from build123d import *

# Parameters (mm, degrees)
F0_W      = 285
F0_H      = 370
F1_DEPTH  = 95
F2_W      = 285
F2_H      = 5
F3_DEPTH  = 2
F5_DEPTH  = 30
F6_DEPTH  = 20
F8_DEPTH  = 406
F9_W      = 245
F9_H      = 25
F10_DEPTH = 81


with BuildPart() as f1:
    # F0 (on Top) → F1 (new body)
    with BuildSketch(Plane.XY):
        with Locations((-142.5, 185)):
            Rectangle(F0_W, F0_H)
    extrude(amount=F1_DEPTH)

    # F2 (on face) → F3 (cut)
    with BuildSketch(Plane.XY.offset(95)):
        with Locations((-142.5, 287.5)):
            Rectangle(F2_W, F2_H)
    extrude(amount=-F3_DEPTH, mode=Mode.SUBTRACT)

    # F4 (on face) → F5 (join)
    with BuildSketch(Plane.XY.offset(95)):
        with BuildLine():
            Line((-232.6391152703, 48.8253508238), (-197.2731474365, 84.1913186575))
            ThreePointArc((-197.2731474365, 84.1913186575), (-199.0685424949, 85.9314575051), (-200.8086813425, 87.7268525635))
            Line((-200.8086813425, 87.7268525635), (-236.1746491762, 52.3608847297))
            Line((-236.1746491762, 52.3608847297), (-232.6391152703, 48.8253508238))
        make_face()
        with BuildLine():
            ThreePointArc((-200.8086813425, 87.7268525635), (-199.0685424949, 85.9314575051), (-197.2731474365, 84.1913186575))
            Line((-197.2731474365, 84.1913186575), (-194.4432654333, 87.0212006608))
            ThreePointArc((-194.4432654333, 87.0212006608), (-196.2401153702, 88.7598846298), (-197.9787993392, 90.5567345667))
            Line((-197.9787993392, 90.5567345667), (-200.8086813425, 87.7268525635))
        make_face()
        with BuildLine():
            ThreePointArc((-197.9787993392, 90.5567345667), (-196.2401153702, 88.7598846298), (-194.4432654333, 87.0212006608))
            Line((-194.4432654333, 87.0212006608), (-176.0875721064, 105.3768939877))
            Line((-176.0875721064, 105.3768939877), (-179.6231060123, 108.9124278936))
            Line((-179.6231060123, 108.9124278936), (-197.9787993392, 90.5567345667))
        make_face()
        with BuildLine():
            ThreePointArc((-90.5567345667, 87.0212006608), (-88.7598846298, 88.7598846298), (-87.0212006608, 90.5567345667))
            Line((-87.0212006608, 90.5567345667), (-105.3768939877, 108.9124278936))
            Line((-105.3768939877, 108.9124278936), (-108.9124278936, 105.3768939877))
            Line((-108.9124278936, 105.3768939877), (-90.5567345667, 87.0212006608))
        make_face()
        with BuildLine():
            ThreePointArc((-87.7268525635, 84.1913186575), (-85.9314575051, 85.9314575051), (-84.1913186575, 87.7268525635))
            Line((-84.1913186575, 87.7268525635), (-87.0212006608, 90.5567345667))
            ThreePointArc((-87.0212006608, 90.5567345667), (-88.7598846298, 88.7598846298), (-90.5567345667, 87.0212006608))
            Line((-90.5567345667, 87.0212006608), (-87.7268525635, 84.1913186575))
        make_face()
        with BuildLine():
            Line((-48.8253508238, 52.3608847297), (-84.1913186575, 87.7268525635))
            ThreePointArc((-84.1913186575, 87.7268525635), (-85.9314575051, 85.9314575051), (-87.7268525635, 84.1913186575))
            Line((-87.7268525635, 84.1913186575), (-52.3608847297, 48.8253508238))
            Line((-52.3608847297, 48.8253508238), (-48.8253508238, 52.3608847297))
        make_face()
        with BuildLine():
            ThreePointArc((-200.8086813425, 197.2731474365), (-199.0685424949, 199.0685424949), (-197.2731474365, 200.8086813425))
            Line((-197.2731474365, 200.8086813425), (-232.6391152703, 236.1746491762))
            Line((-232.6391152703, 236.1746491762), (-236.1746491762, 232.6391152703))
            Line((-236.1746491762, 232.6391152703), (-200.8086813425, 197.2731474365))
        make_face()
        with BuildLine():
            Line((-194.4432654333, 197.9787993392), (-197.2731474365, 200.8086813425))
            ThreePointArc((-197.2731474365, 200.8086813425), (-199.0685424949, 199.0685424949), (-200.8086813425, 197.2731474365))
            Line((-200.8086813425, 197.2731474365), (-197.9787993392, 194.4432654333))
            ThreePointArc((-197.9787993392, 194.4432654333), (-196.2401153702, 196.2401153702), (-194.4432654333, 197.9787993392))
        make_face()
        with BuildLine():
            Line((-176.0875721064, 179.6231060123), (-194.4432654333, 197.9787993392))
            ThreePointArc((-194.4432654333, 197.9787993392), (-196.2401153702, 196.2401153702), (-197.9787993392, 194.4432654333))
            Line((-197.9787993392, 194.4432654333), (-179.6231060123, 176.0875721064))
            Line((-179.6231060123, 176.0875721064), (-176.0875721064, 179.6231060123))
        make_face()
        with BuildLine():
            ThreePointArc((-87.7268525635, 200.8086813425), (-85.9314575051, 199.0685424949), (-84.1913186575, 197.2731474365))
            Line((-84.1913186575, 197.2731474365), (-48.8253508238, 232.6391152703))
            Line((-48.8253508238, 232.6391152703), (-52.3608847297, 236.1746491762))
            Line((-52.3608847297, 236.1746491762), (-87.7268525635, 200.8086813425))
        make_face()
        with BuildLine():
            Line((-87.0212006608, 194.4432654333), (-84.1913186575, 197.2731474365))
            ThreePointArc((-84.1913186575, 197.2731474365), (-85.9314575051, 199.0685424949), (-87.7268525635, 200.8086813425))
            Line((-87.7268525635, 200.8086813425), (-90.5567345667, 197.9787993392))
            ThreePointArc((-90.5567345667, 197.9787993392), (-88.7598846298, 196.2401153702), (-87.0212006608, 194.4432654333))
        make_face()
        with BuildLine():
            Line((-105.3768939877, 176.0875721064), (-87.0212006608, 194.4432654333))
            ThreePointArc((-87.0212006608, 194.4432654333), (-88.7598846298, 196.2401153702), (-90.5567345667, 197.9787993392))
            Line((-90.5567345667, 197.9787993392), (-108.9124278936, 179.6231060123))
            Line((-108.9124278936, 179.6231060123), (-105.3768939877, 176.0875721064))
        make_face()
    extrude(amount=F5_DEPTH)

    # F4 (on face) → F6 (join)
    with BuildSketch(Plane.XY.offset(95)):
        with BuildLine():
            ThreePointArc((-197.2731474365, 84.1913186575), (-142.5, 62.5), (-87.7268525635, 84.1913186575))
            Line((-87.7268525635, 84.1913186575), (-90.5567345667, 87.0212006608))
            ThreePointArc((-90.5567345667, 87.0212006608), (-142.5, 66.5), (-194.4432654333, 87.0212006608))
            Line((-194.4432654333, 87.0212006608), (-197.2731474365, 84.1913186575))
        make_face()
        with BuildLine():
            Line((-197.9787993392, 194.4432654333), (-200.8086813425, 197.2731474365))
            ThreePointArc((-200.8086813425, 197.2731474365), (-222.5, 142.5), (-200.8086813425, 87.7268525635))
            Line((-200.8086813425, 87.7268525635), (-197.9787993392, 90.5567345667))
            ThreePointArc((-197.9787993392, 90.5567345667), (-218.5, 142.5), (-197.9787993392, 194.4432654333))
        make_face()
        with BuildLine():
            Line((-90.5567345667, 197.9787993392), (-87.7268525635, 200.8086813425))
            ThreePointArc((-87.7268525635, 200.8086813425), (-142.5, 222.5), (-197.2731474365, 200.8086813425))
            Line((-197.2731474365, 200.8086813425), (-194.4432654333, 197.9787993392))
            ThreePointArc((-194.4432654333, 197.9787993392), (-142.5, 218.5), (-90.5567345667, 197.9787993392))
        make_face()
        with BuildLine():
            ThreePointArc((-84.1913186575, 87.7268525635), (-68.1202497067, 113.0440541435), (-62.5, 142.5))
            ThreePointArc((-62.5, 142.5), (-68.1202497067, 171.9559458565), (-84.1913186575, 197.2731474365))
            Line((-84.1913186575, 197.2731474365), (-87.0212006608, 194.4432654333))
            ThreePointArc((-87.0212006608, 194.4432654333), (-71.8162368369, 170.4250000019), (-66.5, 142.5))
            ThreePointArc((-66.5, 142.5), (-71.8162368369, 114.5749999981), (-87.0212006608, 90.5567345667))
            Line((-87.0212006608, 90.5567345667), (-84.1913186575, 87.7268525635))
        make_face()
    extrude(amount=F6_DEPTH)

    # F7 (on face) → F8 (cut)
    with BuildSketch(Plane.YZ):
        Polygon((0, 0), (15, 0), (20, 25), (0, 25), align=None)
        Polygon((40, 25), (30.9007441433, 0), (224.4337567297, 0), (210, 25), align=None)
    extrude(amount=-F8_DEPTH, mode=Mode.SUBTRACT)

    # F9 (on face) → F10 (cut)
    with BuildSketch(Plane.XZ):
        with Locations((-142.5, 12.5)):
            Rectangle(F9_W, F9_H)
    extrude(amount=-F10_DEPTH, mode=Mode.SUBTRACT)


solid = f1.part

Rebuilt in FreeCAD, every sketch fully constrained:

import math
import FreeCAD as App
import Part
import Sketcher
Q = App.Units.Quantity

doc = App.newDocument("Part")
params = doc.addObject("Spreadsheet::Sheet", "Params")
for row, (alias, value) in enumerate([
    ("sketch1_width", "285 mm"),
    ("sketch1_height", "370 mm"),
    ("pad1_length", "95 mm"),
    ("sketch2_width", "285 mm"),
    ("sketch2_height", "5 mm"),
    ("pocket1_length", "2 mm"),
    ("sketch3_length", "5 mm"),
    ("pad2_length", "30 mm"),
    ("sketch4_radius", "80 mm"),
    ("sketch4_radius2", "76 mm"),
    ("pad3_length", "20 mm"),
    ("sketch5_width", "15 mm"),
    ("sketch5_width2", "20 mm"),
    ("sketch5_width3", "170 mm"),
    ("sketch5_height", "25 mm"),
    ("pocket2_length", "406 mm"),
    ("sketch6_width", "245 mm"),
    ("sketch6_height", "25 mm"),
    ("pocket3_length", "81 mm"),
], start=1):
    params.set(f"A{row}", alias)
    params.set(f"B{row}", "=" + value)
    params.setAlias(f"B{row}", alias)

body = doc.addObject("PartDesign::Body", "Body")

sketch1 = body.newObject("Sketcher::SketchObject", "Sketch")
sketch1.AttachmentSupport = (doc.getObject("XY_Plane"), [""])
sketch1.MapMode = "FlatFace"
sketch1.addGeometry([
    Part.LineSegment(App.Vector(-285, 370, 0), App.Vector(-285, 0, 0)),
    Part.LineSegment(App.Vector(-285, 0, 0), App.Vector(0, 0, 0)),
    Part.LineSegment(App.Vector(0, 0, 0), App.Vector(0, 370, 0)),
    Part.LineSegment(App.Vector(0, 370, 0), App.Vector(-285, 370, 0)),
], False)
sketch1.addConstraint([
    Sketcher.Constraint("Coincident", 0, 2, 1, 1),
    Sketcher.Constraint("Coincident", 1, 2, 2, 1),
    Sketcher.Constraint("Coincident", 2, 2, 3, 1),
    Sketcher.Constraint("Coincident", 3, 2, 0, 1),
    Sketcher.Constraint("Vertical", 0),
    Sketcher.Constraint("Horizontal", 1),
    Sketcher.Constraint("Vertical", 2),
    Sketcher.Constraint("Horizontal", 3),
    Sketcher.Constraint("Coincident", 1, 2, -1, 1),
    Sketcher.Constraint("DistanceX", 1, 1, 1, 2, Q("285 mm")),
    Sketcher.Constraint("DistanceY", 0, 2, 0, 1, Q("370 mm")),
])
sketch1.setExpression("Constraints[9]", "Params.sketch1_width")
sketch1.setExpression("Constraints[10]", "Params.sketch1_height")
pad1 = body.newObject("PartDesign::Pad", "Pad")
pad1.Profile = sketch1
pad1.setExpression("Length", "Params.pad1_length")

sketch2 = body.newObject("Sketcher::SketchObject", "Sketch001")
sketch2.AttachmentSupport = (doc.getObject("XY_Plane"), [""])
sketch2.MapMode = "FlatFace"
sketch2.AttachmentOffset = App.Placement(App.Vector(0, 0, 95), App.Rotation())
sketch2.addGeometry([
    Part.LineSegment(App.Vector(-285, 290, 0), App.Vector(-285, 285, 0)),
    Part.LineSegment(App.Vector(-285, 285, 0), App.Vector(0, 285, 0)),
    Part.LineSegment(App.Vector(0, 285, 0), App.Vector(0, 290, 0)),
    Part.LineSegment(App.Vector(0, 290, 0), App.Vector(-285, 290, 0)),
], False)
sketch2.addConstraint([
    Sketcher.Constraint("Coincident", 0, 2, 1, 1),
    Sketcher.Constraint("Coincident", 1, 2, 2, 1),
    Sketcher.Constraint("Coincident", 2, 2, 3, 1),
    Sketcher.Constraint("Coincident", 3, 2, 0, 1),
    Sketcher.Constraint("Vertical", 0),
    Sketcher.Constraint("Horizontal", 1),
    Sketcher.Constraint("Vertical", 2),
    Sketcher.Constraint("Horizontal", 3),
    Sketcher.Constraint("PointOnObject", 1, 2, -2),
    Sketcher.Constraint("DistanceX", 1, 1, 1, 2, Q("285 mm")),
    Sketcher.Constraint("DistanceY", 0, 2, 0, 1, Q("5 mm")),
    Sketcher.Constraint("DistanceY", -1, 1, 0, 2, Q("285 mm")),
])
sketch2.setExpression("Constraints[9]", "Params.sketch2_width")
sketch2.setExpression("Constraints[10]", "Params.sketch2_height")
pocket1 = body.newObject("PartDesign::Pocket", "Pocket")
pocket1.Profile = sketch2
pocket1.setExpression("Length", "Params.pocket1_length")

sketch3 = body.newObject("Sketcher::SketchObject", "Sketch002")
sketch3.AttachmentSupport = (doc.getObject("XY_Plane"), [""])
sketch3.MapMode = "FlatFace"
sketch3.AttachmentOffset = App.Placement(App.Vector(0, 0, 95), App.Rotation())
sketch3.addGeometry([
    Part.LineSegment(App.Vector(-232.639115, 48.825351, 0), App.Vector(-197.273147, 84.191319, 0)),
    Part.LineSegment(App.Vector(-197.273147, 84.191319, 0), App.Vector(-194.443265, 87.021201, 0)),
    Part.LineSegment(App.Vector(-194.443265, 87.021201, 0), App.Vector(-176.087572, 105.376894, 0)),
    Part.LineSegment(App.Vector(-176.087572, 105.376894, 0), App.Vector(-179.623106, 108.912428, 0)),
    Part.LineSegment(App.Vector(-179.623106, 108.912428, 0), App.Vector(-197.978799, 90.556735, 0)),
    Part.LineSegment(App.Vector(-197.978799, 90.556735, 0), App.Vector(-200.808681, 87.726853, 0)),
    Part.LineSegment(App.Vector(-200.808681, 87.726853, 0), App.Vector(-236.174649, 52.360885, 0)),
    Part.LineSegment(App.Vector(-236.174649, 52.360885, 0), App.Vector(-232.639115, 48.825351, 0)),
    Part.LineSegment(App.Vector(-87.021201, 90.556735, 0), App.Vector(-105.376894, 108.912428, 0)),
    Part.LineSegment(App.Vector(-105.376894, 108.912428, 0), App.Vector(-108.912428, 105.376894, 0)),
    Part.LineSegment(App.Vector(-108.912428, 105.376894, 0), App.Vector(-90.556735, 87.021201, 0)),
    Part.LineSegment(App.Vector(-90.556735, 87.021201, 0), App.Vector(-87.726853, 84.191319, 0)),
    Part.LineSegment(App.Vector(-87.726853, 84.191319, 0), App.Vector(-52.360885, 48.825351, 0)),
    Part.LineSegment(App.Vector(-52.360885, 48.825351, 0), App.Vector(-48.825351, 52.360885, 0)),
    Part.LineSegment(App.Vector(-48.825351, 52.360885, 0), App.Vector(-84.191319, 87.726853, 0)),
    Part.LineSegment(App.Vector(-84.191319, 87.726853, 0), App.Vector(-87.021201, 90.556735, 0)),
    Part.LineSegment(App.Vector(-197.273147, 200.808681, 0), App.Vector(-232.639115, 236.174649, 0)),
    Part.LineSegment(App.Vector(-232.639115, 236.174649, 0), App.Vector(-236.174649, 232.639115, 0)),
    Part.LineSegment(App.Vector(-236.174649, 232.639115, 0), App.Vector(-200.808681, 197.273147, 0)),
    Part.LineSegment(App.Vector(-200.808681, 197.273147, 0), App.Vector(-197.978799, 194.443265, 0)),
    Part.LineSegment(App.Vector(-197.978799, 194.443265, 0), App.Vector(-179.623106, 176.087572, 0)),
    Part.LineSegment(App.Vector(-179.623106, 176.087572, 0), App.Vector(-176.087572, 179.623106, 0)),
    Part.LineSegment(App.Vector(-176.087572, 179.623106, 0), App.Vector(-194.443265, 197.978799, 0)),
    Part.LineSegment(App.Vector(-194.443265, 197.978799, 0), App.Vector(-197.273147, 200.808681, 0)),
    Part.LineSegment(App.Vector(-84.191319, 197.273147, 0), App.Vector(-48.825351, 232.639115, 0)),
    Part.LineSegment(App.Vector(-48.825351, 232.639115, 0), App.Vector(-52.360885, 236.174649, 0)),
    Part.LineSegment(App.Vector(-52.360885, 236.174649, 0), App.Vector(-87.726853, 200.808681, 0)),
    Part.LineSegment(App.Vector(-87.726853, 200.808681, 0), App.Vector(-90.556735, 197.978799, 0)),
    Part.LineSegment(App.Vector(-90.556735, 197.978799, 0), App.Vector(-108.912428, 179.623106, 0)),
    Part.LineSegment(App.Vector(-108.912428, 179.623106, 0), App.Vector(-105.376894, 176.087572, 0)),
    Part.LineSegment(App.Vector(-105.376894, 176.087572, 0), App.Vector(-87.021201, 194.443265, 0)),
    Part.LineSegment(App.Vector(-87.021201, 194.443265, 0), App.Vector(-84.191319, 197.273147, 0)),
], False)
sketch3.addConstraint([
    Sketcher.Constraint("Coincident", 0, 2, 1, 1),
    Sketcher.Constraint("Coincident", 1, 2, 2, 1),
    Sketcher.Constraint("Coincident", 2, 2, 3, 1),
    Sketcher.Constraint("Coincident", 3, 2, 4, 1),
    Sketcher.Constraint("Coincident", 4, 2, 5, 1),
    Sketcher.Constraint("Coincident", 5, 2, 6, 1),
    Sketcher.Constraint("Coincident", 6, 2, 7, 1),
    Sketcher.Constraint("Coincident", 7, 2, 0, 1),
    Sketcher.Constraint("Coincident", 8, 2, 9, 1),
    Sketcher.Constraint("Coincident", 9, 2, 10, 1),
    Sketcher.Constraint("Coincident", 10, 2, 11, 1),
    Sketcher.Constraint("Coincident", 11, 2, 12, 1),
    Sketcher.Constraint("Coincident", 12, 2, 13, 1),
    Sketcher.Constraint("Coincident", 13, 2, 14, 1),
    Sketcher.Constraint("Coincident", 14, 2, 15, 1),
    Sketcher.Constraint("Coincident", 15, 2, 8, 1),
    Sketcher.Constraint("Coincident", 16, 2, 17, 1),
    Sketcher.Constraint("Coincident", 17, 2, 18, 1),
    Sketcher.Constraint("Coincident", 18, 2, 19, 1),
    Sketcher.Constraint("Coincident", 19, 2, 20, 1),
    Sketcher.Constraint("Coincident", 20, 2, 21, 1),
    Sketcher.Constraint("Coincident", 21, 2, 22, 1),
    Sketcher.Constraint("Coincident", 22, 2, 23, 1),
    Sketcher.Constraint("Coincident", 23, 2, 16, 1),
    Sketcher.Constraint("Coincident", 24, 2, 25, 1),
    Sketcher.Constraint("Coincident", 25, 2, 26, 1),
    Sketcher.Constraint("Coincident", 26, 2, 27, 1),
    Sketcher.Constraint("Coincident", 27, 2, 28, 1),
    Sketcher.Constraint("Coincident", 28, 2, 29, 1),
    Sketcher.Constraint("Coincident", 29, 2, 30, 1),
    Sketcher.Constraint("Coincident", 30, 2, 31, 1),
    Sketcher.Constraint("Coincident", 31, 2, 24, 1),
    Sketcher.Constraint("Parallel", 0, 1),
    Sketcher.Constraint("Parallel", 1, 2),
    Sketcher.Constraint("Perpendicular", 2, 3),
    Sketcher.Constraint("Perpendicular", 3, 4),
    Sketcher.Constraint("Parallel", 4, 5),
    Sketcher.Constraint("Parallel", 5, 6),
    Sketcher.Constraint("Perpendicular", 6, 7),
    Sketcher.Constraint("Parallel", 7, 8),
    Sketcher.Constraint("Perpendicular", 8, 9),
    Sketcher.Constraint("Perpendicular", 9, 10),
    Sketcher.Constraint("Parallel", 10, 11),
    Sketcher.Constraint("Parallel", 11, 12),
    Sketcher.Constraint("Perpendicular", 12, 13),
    Sketcher.Constraint("Perpendicular", 13, 14),
    Sketcher.Constraint("Parallel", 14, 15),
    Sketcher.Constraint("Parallel", 15, 16),
    Sketcher.Constraint("Perpendicular", 16, 17),
    Sketcher.Constraint("Perpendicular", 17, 18),
    Sketcher.Constraint("Parallel", 18, 19),
    Sketcher.Constraint("Parallel", 19, 20),
    Sketcher.Constraint("Perpendicular", 20, 21),
    Sketcher.Constraint("Perpendicular", 21, 22),
    Sketcher.Constraint("Parallel", 22, 23),
    Sketcher.Constraint("Perpendicular", 23, 24),
    Sketcher.Constraint("Perpendicular", 24, 25),
    Sketcher.Constraint("Perpendicular", 25, 26),
    Sketcher.Constraint("Parallel", 26, 27),
    Sketcher.Constraint("Parallel", 27, 28),
    Sketcher.Constraint("Perpendicular", 28, 29),
    Sketcher.Constraint("Perpendicular", 29, 30),
    Sketcher.Constraint("Parallel", 30, 31),
    Sketcher.Constraint("Horizontal", 3, 2, 8, 2),
    Sketcher.Constraint("Horizontal", 2, 2, 9, 2),
    Sketcher.Constraint("Horizontal", 1, 2, 10, 2),
    Sketcher.Constraint("Horizontal", 0, 2, 11, 2),
    Sketcher.Constraint("Horizontal", 7, 2, 12, 2),
    Sketcher.Constraint("Horizontal", 5, 2, 14, 2),
    Sketcher.Constraint("Horizontal", 4, 2, 15, 2),
    Sketcher.Constraint("Horizontal", 17, 2, 24, 2),
    Sketcher.Constraint("Horizontal", 16, 2, 25, 2),
    Sketcher.Constraint("Horizontal", 23, 2, 26, 2),
    Sketcher.Constraint("Horizontal", 22, 2, 27, 2),
    Sketcher.Constraint("Horizontal", 21, 2, 28, 2),
    Sketcher.Constraint("Horizontal", 19, 2, 30, 2),
    Sketcher.Constraint("Horizontal", 18, 2, 31, 2),
    Sketcher.Constraint("Vertical", 7, 2, 16, 2),
    Sketcher.Constraint("Vertical", 6, 2, 17, 2),
    Sketcher.Constraint("Vertical", 5, 2, 18, 2),
    Sketcher.Constraint("Vertical", 4, 2, 19, 2),
    Sketcher.Constraint("Vertical", 3, 2, 20, 2),
    Sketcher.Constraint("Vertical", 1, 2, 22, 2),
    Sketcher.Constraint("Vertical", 0, 2, 23, 2),
    Sketcher.Constraint("Vertical", 13, 2, 24, 2),
    Sketcher.Constraint("Vertical", 12, 2, 25, 2),
    Sketcher.Constraint("Equal", 2, 4),
    Sketcher.Constraint("Equal", 1, 5),
    Sketcher.Constraint("Distance", 3, Q("5 mm")),
    Sketcher.Constraint("DistanceY", -1, 1, 1, 2, Q("87.021201 mm")),
    Sketcher.Constraint("DistanceX", 4, 2, -1, 1, Q("197.978799 mm")),
    Sketcher.Constraint("DistanceX", 15, 2, -1, 1, Q("87.021201 mm")),
    Sketcher.Constraint("DistanceY", -1, 1, 22, 2, Q("197.978799 mm")),
    Sketcher.Constraint("DistanceX", 6, 2, 0, 2, Q("38.901502 mm")),
    Sketcher.Constraint("Distance", 2, Q("25.95887 mm")),
    Sketcher.Constraint("DistanceY", -1, 1, 0, 2, Q("84.191319 mm")),
])
sketch3.setExpression("Constraints[88]", "Params.sketch3_length")
pad2 = body.newObject("PartDesign::Pad", "Pad001")
pad2.Profile = sketch3
pad2.setExpression("Length", "Params.pad2_length")

sketch4 = body.newObject("Sketcher::SketchObject", "Sketch003")
sketch4.AttachmentSupport = (doc.getObject("XY_Plane"), [""])
sketch4.MapMode = "FlatFace"
sketch4.AttachmentOffset = App.Placement(App.Vector(0, 0, 95), App.Rotation())
sketch4.addGeometry([
    Part.ArcOfCircle(Part.Circle(App.Vector(-142.5, 142.5, 0), App.Vector(0, 0, 1), 80), math.radians(-133.209215), math.radians(-46.790785)),
    Part.LineSegment(App.Vector(-87.726853, 84.191319, 0), App.Vector(-90.556735, 87.021201, 0)),
    Part.ArcOfCircle(Part.Circle(App.Vector(-142.5, 142.5, 0), App.Vector(0, 0, 1), 76), math.radians(-133.11493), math.radians(-46.88507)),
    Part.LineSegment(App.Vector(-194.443265, 87.021201, 0), App.Vector(-197.273147, 84.191319, 0)),
    Part.LineSegment(App.Vector(-197.978799, 194.443265, 0), App.Vector(-200.808681, 197.273147, 0)),
    Part.ArcOfCircle(Part.Circle(App.Vector(-142.5, 142.5, 0), App.Vector(0, 0, 1), 80), math.radians(136.790785), math.radians(223.209215)),
    Part.LineSegment(App.Vector(-200.808681, 87.726853, 0), App.Vector(-197.978799, 90.556735, 0)),
    Part.ArcOfCircle(Part.Circle(App.Vector(-142.5, 142.5, 0), App.Vector(0, 0, 1), 76), math.radians(136.88507), math.radians(223.11493)),
    Part.LineSegment(App.Vector(-90.556735, 197.978799, 0), App.Vector(-87.726853, 200.808681, 0)),
    Part.ArcOfCircle(Part.Circle(App.Vector(-142.5, 142.5, 0), App.Vector(0, 0, 1), 80), math.radians(46.790785), math.radians(133.209215)),
    Part.LineSegment(App.Vector(-197.273147, 200.808681, 0), App.Vector(-194.443265, 197.978799, 0)),
    Part.ArcOfCircle(Part.Circle(App.Vector(-142.5, 142.5, 0), App.Vector(0, 0, 1), 76), math.radians(46.88507), math.radians(133.11493)),
    Part.ArcOfCircle(Part.Circle(App.Vector(-142.5, 142.5, 0), App.Vector(0, 0, 1), 80), math.radians(-43.209215), math.radians(0)),
    Part.ArcOfCircle(Part.Circle(App.Vector(-142.5, 142.5, 0), App.Vector(0, 0, 1), 80), math.radians(0), math.radians(43.209215)),
    Part.LineSegment(App.Vector(-84.191319, 197.273147, 0), App.Vector(-87.021201, 194.443265, 0)),
    Part.ArcOfCircle(Part.Circle(App.Vector(-142.5, 142.5, 0), App.Vector(0, 0, 1), 76), math.radians(0), math.radians(43.11493)),
    Part.ArcOfCircle(Part.Circle(App.Vector(-142.5, 142.5, 0), App.Vector(0, 0, 1), 76), math.radians(-43.11493), math.radians(0)),
    Part.LineSegment(App.Vector(-87.021201, 90.556735, 0), App.Vector(-84.191319, 87.726853, 0)),
], False)
sketch4.addConstraint([
    Sketcher.Constraint("Coincident", 0, 2, 1, 1),
    Sketcher.Constraint("Coincident", 1, 2, 2, 2),
    Sketcher.Constraint("Coincident", 2, 1, 3, 1),
    Sketcher.Constraint("Coincident", 3, 2, 0, 1),
    Sketcher.Constraint("Coincident", 4, 2, 5, 1),
    Sketcher.Constraint("Coincident", 5, 2, 6, 1),
    Sketcher.Constraint("Coincident", 6, 2, 7, 2),
    Sketcher.Constraint("Coincident", 7, 1, 4, 1),
    Sketcher.Constraint("Coincident", 8, 2, 9, 1),
    Sketcher.Constraint("Coincident", 9, 2, 10, 1),
    Sketcher.Constraint("Coincident", 10, 2, 11, 2),
    Sketcher.Constraint("Coincident", 11, 1, 8, 1),
    Sketcher.Constraint("Tangent", 12, 2, 13, 1),
    Sketcher.Constraint("Coincident", 13, 2, 14, 1),
    Sketcher.Constraint("Coincident", 14, 2, 15, 2),
    Sketcher.Constraint("Tangent", 15, 1, 16, 2),
    Sketcher.Constraint("Coincident", 16, 1, 17, 1),
    Sketcher.Constraint("Coincident", 17, 2, 12, 1),
    Sketcher.Constraint("Coincident", 2, 3, 0, 3),
    Sketcher.Constraint("Coincident", 5, 3, 0, 3),
    Sketcher.Constraint("Coincident", 7, 3, 0, 3),
    Sketcher.Constraint("Coincident", 9, 3, 0, 3),
    Sketcher.Constraint("Coincident", 11, 3, 0, 3),
    Sketcher.Constraint("Coincident", 12, 3, 0, 3),
    Sketcher.Constraint("Coincident", 15, 3, 0, 3),
    Sketcher.Constraint("Equal", 0, 5),
    Sketcher.Constraint("Equal", 2, 7),
    Sketcher.Constraint("Equal", 5, 9),
    Sketcher.Constraint("Equal", 7, 11),
    Sketcher.Constraint("Equal", 9, 12),
    Sketcher.Constraint("Equal", 12, 13),
    Sketcher.Constraint("Equal", 11, 15),
    Sketcher.Constraint("Equal", 15, 16),
    Sketcher.Constraint("Perpendicular", 1, 3),
    Sketcher.Constraint("Perpendicular", 3, 4),
    Sketcher.Constraint("Perpendicular", 4, 6),
    Sketcher.Constraint("Parallel", 6, 8),
    Sketcher.Constraint("Perpendicular", 8, 10),
    Sketcher.Constraint("Perpendicular", 10, 14),
    Sketcher.Constraint("Perpendicular", 14, 17),
    Sketcher.Constraint("Horizontal", 1, 2, 2, 1),
    Sketcher.Constraint("Horizontal", 0, 2, 3, 2),
    Sketcher.Constraint("Horizontal", 8, 2, 9, 2),
    Sketcher.Constraint("Horizontal", 16, 3, 12, 2),
    Sketcher.Constraint("Horizontal", 4, 2, 13, 2),
    Sketcher.Constraint("Horizontal", 12, 2, 15, 1),
    Sketcher.Constraint("Horizontal", 6, 2, 16, 1),
    Sketcher.Constraint("Vertical", 4, 2, 5, 2),
    Sketcher.Constraint("Vertical", 0, 2, 8, 2),
    Sketcher.Constraint("Radius", 0, Q("80 mm")),
    Sketcher.Constraint("Radius", 2, Q("76 mm")),
    Sketcher.Constraint("DistanceX", 0, 3, -1, 1, Q("142.5 mm")),
    Sketcher.Constraint("DistanceY", -1, 1, 0, 3, Q("142.5 mm")),
    Sketcher.Constraint("DistanceY", -1, 1, 1, 2, Q("87.021201 mm")),
    Sketcher.Constraint("DistanceX", 6, 2, -1, 1, Q("197.978799 mm")),
])
sketch4.setExpression("Constraints[49]", "Params.sketch4_radius")
sketch4.setExpression("Constraints[50]", "Params.sketch4_radius2")
pad3 = body.newObject("PartDesign::Pad", "Pad002")
pad3.Profile = sketch4
pad3.setExpression("Length", "Params.pad3_length")

sketch5 = body.newObject("Sketcher::SketchObject", "Sketch004")
sketch5.AttachmentSupport = (doc.getObject("YZ_Plane"), [""])
sketch5.MapMode = "FlatFace"
sketch5.addGeometry([
    Part.LineSegment(App.Vector(0, 0, 0), App.Vector(15, 0, 0)),
    Part.LineSegment(App.Vector(15, 0, 0), App.Vector(20, 25, 0)),
    Part.LineSegment(App.Vector(20, 25, 0), App.Vector(0, 25, 0)),
    Part.LineSegment(App.Vector(0, 25, 0), App.Vector(0, 0, 0)),
    Part.LineSegment(App.Vector(40, 25, 0), App.Vector(30.900744, 0, 0)),
    Part.LineSegment(App.Vector(30.900744, 0, 0), App.Vector(224.433757, 0, 0)),
    Part.LineSegment(App.Vector(224.433757, 0, 0), App.Vector(210, 25, 0)),
    Part.LineSegment(App.Vector(210, 25, 0), App.Vector(40, 25, 0)),
], False)
sketch5.addConstraint([
    Sketcher.Constraint("Coincident", 0, 2, 1, 1),
    Sketcher.Constraint("Coincident", 1, 2, 2, 1),
    Sketcher.Constraint("Coincident", 2, 2, 3, 1),
    Sketcher.Constraint("Coincident", 3, 2, 0, 1),
    Sketcher.Constraint("Coincident", 4, 2, 5, 1),
    Sketcher.Constraint("Coincident", 5, 2, 6, 1),
    Sketcher.Constraint("Coincident", 6, 2, 7, 1),
    Sketcher.Constraint("Coincident", 7, 2, 4, 1),
    Sketcher.Constraint("Horizontal", 0),
    Sketcher.Constraint("Horizontal", 2),
    Sketcher.Constraint("Vertical", 3),
    Sketcher.Constraint("Horizontal", 5),
    Sketcher.Constraint("Horizontal", 7),
    Sketcher.Constraint("Coincident", 3, 2, -1, 1),
    Sketcher.Constraint("PointOnObject", 4, 2, -1),
    Sketcher.Constraint("Horizontal", 2, 2, 6, 2),
    Sketcher.Constraint("DistanceX", 0, 1, 0, 2, Q("15 mm")),
    Sketcher.Constraint("DistanceX", 2, 2, 2, 1, Q("20 mm")),
    Sketcher.Constraint("DistanceX", 7, 2, 7, 1, Q("170 mm")),
    Sketcher.Constraint("DistanceY", 3, 2, 3, 1, Q("25 mm")),
    Sketcher.Constraint("Angle", 4, Q("-110 deg")),
    Sketcher.Constraint("Angle", 6, Q("120 deg")),
    Sketcher.Constraint("DistanceX", -1, 1, 6, 2, Q("210 mm")),
])
sketch5.setExpression("Constraints[16]", "Params.sketch5_width")
sketch5.setExpression("Constraints[17]", "Params.sketch5_width2")
sketch5.setExpression("Constraints[18]", "Params.sketch5_width3")
sketch5.setExpression("Constraints[19]", "Params.sketch5_height")
pocket2 = body.newObject("PartDesign::Pocket", "Pocket001")
pocket2.Profile = sketch5
pocket2.setExpression("Length", "Params.pocket2_length")

sketch6 = body.newObject("Sketcher::SketchObject", "Sketch005")
sketch6.AttachmentSupport = (doc.getObject("XZ_Plane"), [""])
sketch6.MapMode = "FlatFace"
sketch6.addGeometry([
    Part.LineSegment(App.Vector(-265, 25, 0), App.Vector(-265, 0, 0)),
    Part.LineSegment(App.Vector(-265, 0, 0), App.Vector(-20, 0, 0)),
    Part.LineSegment(App.Vector(-20, 0, 0), App.Vector(-20, 25, 0)),
    Part.LineSegment(App.Vector(-20, 25, 0), App.Vector(-265, 25, 0)),
], False)
sketch6.addConstraint([
    Sketcher.Constraint("Coincident", 0, 2, 1, 1),
    Sketcher.Constraint("Coincident", 1, 2, 2, 1),
    Sketcher.Constraint("Coincident", 2, 2, 3, 1),
    Sketcher.Constraint("Coincident", 3, 2, 0, 1),
    Sketcher.Constraint("Vertical", 0),
    Sketcher.Constraint("Horizontal", 1),
    Sketcher.Constraint("Vertical", 2),
    Sketcher.Constraint("Horizontal", 3),
    Sketcher.Constraint("PointOnObject", 0, 2, -1),
    Sketcher.Constraint("DistanceX", 1, 1, 1, 2, Q("245 mm")),
    Sketcher.Constraint("DistanceY", 0, 2, 0, 1, Q("25 mm")),
    Sketcher.Constraint("DistanceX", 0, 2, -1, 1, Q("265 mm")),
])
sketch6.setExpression("Constraints[9]", "Params.sketch6_width")
sketch6.setExpression("Constraints[10]", "Params.sketch6_height")
pocket3 = body.newObject("PartDesign::Pocket", "Pocket002")
pocket3.Profile = sketch6
pocket3.setExpression("Length", "Params.pocket3_length")

doc.recompute()
